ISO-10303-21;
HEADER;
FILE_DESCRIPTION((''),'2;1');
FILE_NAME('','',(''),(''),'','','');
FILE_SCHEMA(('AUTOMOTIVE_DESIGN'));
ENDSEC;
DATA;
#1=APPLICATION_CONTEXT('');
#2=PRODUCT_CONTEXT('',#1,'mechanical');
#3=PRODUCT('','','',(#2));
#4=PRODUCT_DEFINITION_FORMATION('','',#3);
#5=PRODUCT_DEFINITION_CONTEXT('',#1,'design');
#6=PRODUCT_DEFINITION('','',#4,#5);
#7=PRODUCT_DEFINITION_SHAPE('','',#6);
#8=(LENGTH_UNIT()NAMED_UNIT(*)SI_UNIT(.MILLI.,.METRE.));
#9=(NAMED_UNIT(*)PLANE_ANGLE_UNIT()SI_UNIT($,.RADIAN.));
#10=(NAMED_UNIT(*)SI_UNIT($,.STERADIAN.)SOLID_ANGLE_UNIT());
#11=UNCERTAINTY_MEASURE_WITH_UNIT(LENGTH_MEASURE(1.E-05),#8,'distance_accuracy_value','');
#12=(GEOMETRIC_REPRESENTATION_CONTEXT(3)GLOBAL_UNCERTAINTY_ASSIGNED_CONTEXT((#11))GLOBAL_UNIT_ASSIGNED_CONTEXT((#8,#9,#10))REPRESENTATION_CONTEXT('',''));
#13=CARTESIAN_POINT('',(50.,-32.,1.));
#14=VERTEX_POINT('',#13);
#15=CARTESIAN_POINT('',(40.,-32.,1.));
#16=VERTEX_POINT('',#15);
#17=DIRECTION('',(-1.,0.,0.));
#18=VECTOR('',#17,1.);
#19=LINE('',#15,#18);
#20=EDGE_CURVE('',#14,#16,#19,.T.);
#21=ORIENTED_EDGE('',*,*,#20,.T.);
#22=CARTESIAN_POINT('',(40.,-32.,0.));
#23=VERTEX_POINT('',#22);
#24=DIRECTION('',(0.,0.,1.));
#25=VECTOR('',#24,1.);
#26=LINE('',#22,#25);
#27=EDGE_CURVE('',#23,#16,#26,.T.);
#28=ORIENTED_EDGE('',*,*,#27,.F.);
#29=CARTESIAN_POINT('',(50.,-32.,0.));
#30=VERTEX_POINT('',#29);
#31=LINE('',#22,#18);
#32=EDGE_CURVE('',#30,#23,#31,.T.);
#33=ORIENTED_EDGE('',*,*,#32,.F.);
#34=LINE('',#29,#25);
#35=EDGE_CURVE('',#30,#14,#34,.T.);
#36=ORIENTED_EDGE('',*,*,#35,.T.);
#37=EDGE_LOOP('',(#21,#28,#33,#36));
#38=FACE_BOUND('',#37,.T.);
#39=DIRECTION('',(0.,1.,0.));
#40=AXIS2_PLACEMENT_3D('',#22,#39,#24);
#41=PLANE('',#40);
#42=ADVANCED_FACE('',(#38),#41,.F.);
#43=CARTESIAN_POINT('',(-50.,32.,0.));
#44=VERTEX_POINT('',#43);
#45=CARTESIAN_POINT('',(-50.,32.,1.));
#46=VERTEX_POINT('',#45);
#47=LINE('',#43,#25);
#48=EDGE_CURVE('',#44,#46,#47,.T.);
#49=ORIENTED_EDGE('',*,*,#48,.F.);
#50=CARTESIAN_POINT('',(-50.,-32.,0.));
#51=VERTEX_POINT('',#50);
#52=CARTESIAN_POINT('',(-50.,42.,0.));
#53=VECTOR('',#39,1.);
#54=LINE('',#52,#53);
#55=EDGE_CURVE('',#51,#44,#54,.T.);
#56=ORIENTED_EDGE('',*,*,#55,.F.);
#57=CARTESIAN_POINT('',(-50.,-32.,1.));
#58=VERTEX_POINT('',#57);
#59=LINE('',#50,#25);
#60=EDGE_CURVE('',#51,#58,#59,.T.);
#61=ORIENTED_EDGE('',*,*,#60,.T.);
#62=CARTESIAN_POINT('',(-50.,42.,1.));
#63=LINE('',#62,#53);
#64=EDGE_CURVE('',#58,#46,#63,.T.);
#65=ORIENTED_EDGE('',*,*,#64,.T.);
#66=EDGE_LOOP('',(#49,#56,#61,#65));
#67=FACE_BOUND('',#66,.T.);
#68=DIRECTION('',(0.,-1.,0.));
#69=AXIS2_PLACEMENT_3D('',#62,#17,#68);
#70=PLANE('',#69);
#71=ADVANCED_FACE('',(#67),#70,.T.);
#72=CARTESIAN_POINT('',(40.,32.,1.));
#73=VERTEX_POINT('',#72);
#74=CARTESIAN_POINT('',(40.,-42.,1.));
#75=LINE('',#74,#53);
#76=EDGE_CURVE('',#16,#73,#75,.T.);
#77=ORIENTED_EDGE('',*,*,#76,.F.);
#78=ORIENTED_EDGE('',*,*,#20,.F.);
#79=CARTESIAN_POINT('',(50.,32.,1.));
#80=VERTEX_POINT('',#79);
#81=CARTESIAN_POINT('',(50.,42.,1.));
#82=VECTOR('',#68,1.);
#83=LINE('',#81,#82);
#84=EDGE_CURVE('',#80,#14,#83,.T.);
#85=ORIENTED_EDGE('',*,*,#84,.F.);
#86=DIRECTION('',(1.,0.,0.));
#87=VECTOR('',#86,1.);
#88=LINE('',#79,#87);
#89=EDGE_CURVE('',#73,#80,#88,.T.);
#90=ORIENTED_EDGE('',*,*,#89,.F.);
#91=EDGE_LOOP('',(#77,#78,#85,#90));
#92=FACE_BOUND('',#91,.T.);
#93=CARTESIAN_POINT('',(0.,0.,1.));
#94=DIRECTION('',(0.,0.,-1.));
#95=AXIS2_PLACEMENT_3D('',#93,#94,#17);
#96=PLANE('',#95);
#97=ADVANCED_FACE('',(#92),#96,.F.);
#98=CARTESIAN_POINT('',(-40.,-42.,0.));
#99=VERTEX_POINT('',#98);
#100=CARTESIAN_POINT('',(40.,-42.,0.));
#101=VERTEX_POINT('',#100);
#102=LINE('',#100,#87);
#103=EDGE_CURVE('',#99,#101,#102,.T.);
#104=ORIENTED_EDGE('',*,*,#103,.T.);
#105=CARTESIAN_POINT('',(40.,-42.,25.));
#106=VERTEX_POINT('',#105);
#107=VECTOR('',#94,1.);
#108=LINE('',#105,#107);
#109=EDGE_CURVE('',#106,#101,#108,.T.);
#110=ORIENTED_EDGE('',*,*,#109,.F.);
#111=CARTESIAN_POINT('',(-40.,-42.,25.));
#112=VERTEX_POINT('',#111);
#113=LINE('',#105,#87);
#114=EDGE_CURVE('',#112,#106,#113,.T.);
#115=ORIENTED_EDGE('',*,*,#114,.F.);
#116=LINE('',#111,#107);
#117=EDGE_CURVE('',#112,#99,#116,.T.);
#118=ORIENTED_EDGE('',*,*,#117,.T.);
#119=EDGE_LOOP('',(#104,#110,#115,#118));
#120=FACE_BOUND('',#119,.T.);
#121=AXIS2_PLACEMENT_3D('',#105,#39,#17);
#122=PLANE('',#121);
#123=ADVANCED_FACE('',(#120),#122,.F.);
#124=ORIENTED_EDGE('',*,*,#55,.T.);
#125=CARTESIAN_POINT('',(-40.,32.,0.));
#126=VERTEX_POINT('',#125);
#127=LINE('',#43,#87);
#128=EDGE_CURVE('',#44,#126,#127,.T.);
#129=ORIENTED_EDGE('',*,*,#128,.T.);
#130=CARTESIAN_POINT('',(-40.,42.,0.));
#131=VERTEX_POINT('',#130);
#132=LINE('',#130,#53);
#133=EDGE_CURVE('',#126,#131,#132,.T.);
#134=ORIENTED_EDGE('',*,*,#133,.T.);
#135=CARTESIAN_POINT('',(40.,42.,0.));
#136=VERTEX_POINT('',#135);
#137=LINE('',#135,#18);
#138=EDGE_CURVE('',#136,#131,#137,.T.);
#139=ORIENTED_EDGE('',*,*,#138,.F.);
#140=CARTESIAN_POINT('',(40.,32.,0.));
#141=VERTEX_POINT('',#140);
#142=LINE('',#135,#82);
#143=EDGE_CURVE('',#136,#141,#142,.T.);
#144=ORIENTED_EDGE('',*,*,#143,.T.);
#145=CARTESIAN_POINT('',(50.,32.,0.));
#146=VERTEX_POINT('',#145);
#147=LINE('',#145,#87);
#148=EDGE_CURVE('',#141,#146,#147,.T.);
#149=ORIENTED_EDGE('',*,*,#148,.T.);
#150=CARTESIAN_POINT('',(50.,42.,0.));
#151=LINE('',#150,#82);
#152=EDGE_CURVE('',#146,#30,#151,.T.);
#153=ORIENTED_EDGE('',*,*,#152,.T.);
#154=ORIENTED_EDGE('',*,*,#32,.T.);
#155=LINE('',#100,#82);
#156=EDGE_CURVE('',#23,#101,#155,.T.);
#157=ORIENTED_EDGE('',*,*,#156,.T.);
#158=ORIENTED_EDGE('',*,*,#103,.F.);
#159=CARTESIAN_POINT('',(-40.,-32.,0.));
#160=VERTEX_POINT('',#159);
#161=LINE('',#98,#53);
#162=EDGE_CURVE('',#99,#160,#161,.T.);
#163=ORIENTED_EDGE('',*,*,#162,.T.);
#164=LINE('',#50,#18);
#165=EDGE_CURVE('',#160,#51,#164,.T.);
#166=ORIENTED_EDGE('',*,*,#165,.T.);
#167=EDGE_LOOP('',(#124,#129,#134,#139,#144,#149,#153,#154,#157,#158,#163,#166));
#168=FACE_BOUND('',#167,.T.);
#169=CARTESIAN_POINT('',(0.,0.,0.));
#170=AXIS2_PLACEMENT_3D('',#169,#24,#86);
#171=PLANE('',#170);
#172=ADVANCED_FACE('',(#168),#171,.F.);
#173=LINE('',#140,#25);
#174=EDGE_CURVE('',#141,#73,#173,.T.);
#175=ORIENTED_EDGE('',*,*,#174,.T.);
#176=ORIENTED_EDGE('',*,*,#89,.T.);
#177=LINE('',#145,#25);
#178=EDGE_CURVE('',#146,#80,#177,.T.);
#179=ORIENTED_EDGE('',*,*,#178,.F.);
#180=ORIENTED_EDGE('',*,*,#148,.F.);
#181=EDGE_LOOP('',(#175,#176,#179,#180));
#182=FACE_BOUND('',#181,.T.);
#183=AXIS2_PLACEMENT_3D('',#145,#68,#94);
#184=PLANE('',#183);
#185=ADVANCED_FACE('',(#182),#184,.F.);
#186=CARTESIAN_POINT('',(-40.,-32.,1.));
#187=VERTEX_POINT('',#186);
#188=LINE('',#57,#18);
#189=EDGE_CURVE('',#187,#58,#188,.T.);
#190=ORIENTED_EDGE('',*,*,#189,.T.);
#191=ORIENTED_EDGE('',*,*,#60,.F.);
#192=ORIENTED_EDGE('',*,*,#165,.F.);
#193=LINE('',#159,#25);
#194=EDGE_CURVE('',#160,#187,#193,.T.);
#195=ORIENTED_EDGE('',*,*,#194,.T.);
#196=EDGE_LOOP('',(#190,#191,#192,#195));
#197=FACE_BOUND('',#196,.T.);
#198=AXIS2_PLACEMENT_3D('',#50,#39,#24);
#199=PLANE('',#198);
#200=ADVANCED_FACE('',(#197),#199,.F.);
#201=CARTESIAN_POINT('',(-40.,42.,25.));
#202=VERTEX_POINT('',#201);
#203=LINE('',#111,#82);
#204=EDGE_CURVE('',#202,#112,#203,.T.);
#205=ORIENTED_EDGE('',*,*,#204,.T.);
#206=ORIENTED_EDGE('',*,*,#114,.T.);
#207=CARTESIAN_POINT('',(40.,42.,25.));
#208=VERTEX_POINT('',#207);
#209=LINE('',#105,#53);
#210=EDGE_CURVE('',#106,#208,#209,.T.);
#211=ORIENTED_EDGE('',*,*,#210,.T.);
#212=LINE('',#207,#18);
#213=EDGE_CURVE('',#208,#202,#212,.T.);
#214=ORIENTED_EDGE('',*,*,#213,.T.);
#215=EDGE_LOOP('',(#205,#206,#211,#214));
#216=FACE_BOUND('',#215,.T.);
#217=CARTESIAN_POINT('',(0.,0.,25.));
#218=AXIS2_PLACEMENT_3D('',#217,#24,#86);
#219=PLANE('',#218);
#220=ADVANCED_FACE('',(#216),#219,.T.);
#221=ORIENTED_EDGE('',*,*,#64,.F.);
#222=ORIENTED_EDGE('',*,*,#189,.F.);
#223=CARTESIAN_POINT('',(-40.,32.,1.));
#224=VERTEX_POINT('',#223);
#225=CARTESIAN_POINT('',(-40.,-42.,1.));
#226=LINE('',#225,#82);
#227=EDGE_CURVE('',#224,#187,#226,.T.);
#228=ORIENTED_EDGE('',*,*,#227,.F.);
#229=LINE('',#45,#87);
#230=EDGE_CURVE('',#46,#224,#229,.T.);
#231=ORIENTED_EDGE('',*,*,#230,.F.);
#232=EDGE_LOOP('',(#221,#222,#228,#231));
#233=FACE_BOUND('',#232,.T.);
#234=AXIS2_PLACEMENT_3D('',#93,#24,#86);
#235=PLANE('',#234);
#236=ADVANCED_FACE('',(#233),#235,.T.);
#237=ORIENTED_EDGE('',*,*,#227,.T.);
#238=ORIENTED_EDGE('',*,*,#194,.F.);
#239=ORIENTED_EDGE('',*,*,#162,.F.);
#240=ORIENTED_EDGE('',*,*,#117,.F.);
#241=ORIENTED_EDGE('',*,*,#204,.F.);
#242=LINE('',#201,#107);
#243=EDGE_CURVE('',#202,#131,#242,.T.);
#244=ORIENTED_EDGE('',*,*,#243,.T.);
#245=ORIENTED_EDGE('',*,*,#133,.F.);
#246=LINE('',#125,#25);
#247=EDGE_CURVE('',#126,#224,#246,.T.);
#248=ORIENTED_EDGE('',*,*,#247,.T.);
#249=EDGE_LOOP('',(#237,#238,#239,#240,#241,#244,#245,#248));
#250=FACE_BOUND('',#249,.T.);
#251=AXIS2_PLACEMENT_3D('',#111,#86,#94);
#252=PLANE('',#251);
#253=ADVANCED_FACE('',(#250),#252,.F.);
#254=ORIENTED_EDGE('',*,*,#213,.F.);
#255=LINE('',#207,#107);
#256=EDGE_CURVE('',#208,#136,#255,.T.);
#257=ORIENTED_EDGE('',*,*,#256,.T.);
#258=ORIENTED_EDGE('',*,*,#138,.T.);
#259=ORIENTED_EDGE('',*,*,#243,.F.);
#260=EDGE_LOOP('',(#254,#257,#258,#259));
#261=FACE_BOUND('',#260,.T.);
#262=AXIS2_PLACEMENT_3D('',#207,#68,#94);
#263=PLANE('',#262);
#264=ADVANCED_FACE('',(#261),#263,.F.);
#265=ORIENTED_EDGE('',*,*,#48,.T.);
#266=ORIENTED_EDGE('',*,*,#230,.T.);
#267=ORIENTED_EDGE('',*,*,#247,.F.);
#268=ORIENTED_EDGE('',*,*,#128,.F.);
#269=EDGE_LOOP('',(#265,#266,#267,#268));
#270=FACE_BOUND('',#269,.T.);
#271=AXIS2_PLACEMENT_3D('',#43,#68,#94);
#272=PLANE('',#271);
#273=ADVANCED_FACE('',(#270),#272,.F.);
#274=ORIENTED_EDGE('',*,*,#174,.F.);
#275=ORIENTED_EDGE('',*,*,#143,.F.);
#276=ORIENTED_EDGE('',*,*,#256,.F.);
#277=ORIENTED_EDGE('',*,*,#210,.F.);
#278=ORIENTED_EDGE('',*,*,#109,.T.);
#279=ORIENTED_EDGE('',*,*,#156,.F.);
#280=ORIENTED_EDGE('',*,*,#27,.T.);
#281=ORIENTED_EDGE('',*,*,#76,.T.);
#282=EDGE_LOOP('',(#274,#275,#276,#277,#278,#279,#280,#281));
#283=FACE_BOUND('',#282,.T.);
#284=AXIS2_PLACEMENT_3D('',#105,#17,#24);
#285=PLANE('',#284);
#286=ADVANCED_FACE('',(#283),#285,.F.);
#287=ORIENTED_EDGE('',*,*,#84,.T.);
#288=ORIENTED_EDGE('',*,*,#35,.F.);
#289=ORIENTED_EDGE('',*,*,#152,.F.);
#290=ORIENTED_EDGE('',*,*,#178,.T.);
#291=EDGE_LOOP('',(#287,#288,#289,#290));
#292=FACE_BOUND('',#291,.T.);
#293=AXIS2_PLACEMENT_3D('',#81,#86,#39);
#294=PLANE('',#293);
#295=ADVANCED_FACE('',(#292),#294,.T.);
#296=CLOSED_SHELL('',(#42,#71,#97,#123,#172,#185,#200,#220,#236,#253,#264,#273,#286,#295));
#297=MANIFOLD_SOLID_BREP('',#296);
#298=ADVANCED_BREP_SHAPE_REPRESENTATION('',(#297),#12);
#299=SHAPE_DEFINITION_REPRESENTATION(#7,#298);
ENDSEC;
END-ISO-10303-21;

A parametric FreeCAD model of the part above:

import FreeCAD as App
import Part
import Sketcher
from FreeCAD import Vector


def add_polygon(sketch, points):
    """Adds a closed chain of lines whose ends are joined by coincident constraints."""
    first, n = sketch.GeometryCount, len(points)
    for a, b in zip(points, points[1:] + points[:1]):
        sketch.addGeometry(Part.LineSegment(App.Vector(*a, 0), App.Vector(*b, 0)), False)
    for i in range(n):
        sketch.addConstraint(Sketcher.Constraint("Coincident", first + i, 2, first + (i + 1) % n, 1))

doc = App.newDocument("Part")
body = doc.addObject("PartDesign::Body", "Body")

sketch1 = doc.addObject("Sketcher::SketchObject", "Sketch")
body.addObject(sketch1)
sketch1.AttachmentSupport = (doc.XY_Plane, [""])
sketch1.MapMode = "FlatFace"
add_polygon(sketch1, [(-40, 42), (-40, -42), (40, -42), (40, 42)])
sketch1.addConstraint(Sketcher.Constraint("Vertical", 0))
sketch1.addConstraint(Sketcher.Constraint("Horizontal", 1))
sketch1.addConstraint(Sketcher.Constraint("Vertical", 2))
sketch1.addConstraint(Sketcher.Constraint("Horizontal", 3))
sketch1.addConstraint(Sketcher.Constraint("Symmetric", 0, 2, 2, 2, -1, 1))
sketch1.addConstraint(Sketcher.Constraint("DistanceX", 1, 1, 1, 2, 80.0))
sketch1.addConstraint(Sketcher.Constraint("DistanceY", 0, 2, 0, 1, 84.0))
pad1 = doc.addObject("PartDesign::Pad", "Pad")
body.addObject(pad1)
pad1.Profile = sketch1
pad1.Length = 25

sketch2 = doc.addObject("Sketcher::SketchObject", "Sketch001")
body.addObject(sketch2)
sketch2.AttachmentSupport = (doc.XY_Plane, [""])
sketch2.MapMode = "FlatFace"
add_polygon(sketch2, [(50, 42), (50, -42), (40, -42), (40, 42)])
add_polygon(sketch2, [(-40, 42), (-40, -42), (-50, -42), (-50, 42)])
sketch2.addConstraint(Sketcher.Constraint("Vertical", 0))
sketch2.addConstraint(Sketcher.Constraint("Horizontal", 1))
sketch2.addConstraint(Sketcher.Constraint("Vertical", 2))
sketch2.addConstraint(Sketcher.Constraint("Horizontal", 3))
sketch2.addConstraint(Sketcher.Constraint("Vertical", 4))
sketch2.addConstraint(Sketcher.Constraint("Horizontal", 5))
sketch2.addConstraint(Sketcher.Constraint("Vertical", 6))
sketch2.addConstraint(Sketcher.Constraint("Horizontal", 7))
sketch2.addConstraint(Sketcher.Constraint("Symmetric", 2, 2, 4, 2, -1, 1))
sketch2.addConstraint(Sketcher.Constraint("Symmetric", 0, 2, 6, 2, -1, 1))
sketch2.addConstraint(Sketcher.Constraint("Horizontal", 1, 2, 4, 2))
sketch2.addConstraint(Sketcher.Constraint("DistanceX", 1, 2, 1, 1, 10.0))
sketch2.addConstraint(Sketcher.Constraint("DistanceY", 0, 2, 0, 1, 84.0))
sketch2.addConstraint(Sketcher.Constraint("DistanceX", -1, 1, 0, 2, 50.0))
pad2 = doc.addObject("PartDesign::Pad", "Pad001")
body.addObject(pad2)
pad2.Profile = sketch2
pad2.Length = 1

sketch3 = doc.addObject("Sketcher::SketchObject", "Sketch002")
body.addObject(sketch3)
sketch3.AttachmentSupport = (doc.XY_Plane, [""])
sketch3.MapMode = "FlatFace"
sketch3.AttachmentOffset = App.Placement(Vector(0, 0, 1), App.Rotation())
add_polygon(sketch3, [(-50, 42), (-50, 32), (-40, 32), (-40, 42)])
add_polygon(sketch3, [(-50, -32), (-50, -42), (-40, -42), (-40, -32)])
sketch3.addConstraint(Sketcher.Constraint("Vertical", 0))
sketch3.addConstraint(Sketcher.Constraint("Horizontal", 1))
sketch3.addConstraint(Sketcher.Constraint("Vertical", 2))
sketch3.addConstraint(Sketcher.Constraint("Horizontal", 3))
sketch3.addConstraint(Sketcher.Constraint("Vertical", 4))
sketch3.addConstraint(Sketcher.Constraint("Horizontal", 5))
sketch3.addConstraint(Sketcher.Constraint("Vertical", 6))
sketch3.addConstraint(Sketcher.Constraint("Horizontal", 7))
sketch3.addConstraint(Sketcher.Constraint("Symmetric", 3, 2, 4, 2, -1))
sketch3.addConstraint(Sketcher.Constraint("Symmetric", 1, 2, 6, 2, -1))
sketch3.addConstraint(Sketcher.Constraint("Equal", 7, 0))
sketch3.addConstraint(Sketcher.Constraint("DistanceX", 1, 1, 1, 2, 10.0))
sketch3.addConstraint(Sketcher.Constraint("DistanceX", 0, 2, -1, 1, 50.0))
sketch3.addConstraint(Sketcher.Constraint("DistanceY", -1, 1, 0, 2, 32.0))
pocket1 = doc.addObject("PartDesign::Pocket", "Pocket")
body.addObject(pocket1)
pocket1.Profile = sketch3
pocket1.Length = 1

sketch4 = doc.addObject("Sketcher::SketchObject", "Sketch003")
body.addObject(sketch4)
sketch4.AttachmentSupport = (doc.XY_Plane, [""])
sketch4.MapMode = "FlatFace"
sketch4.AttachmentOffset = App.Placement(Vector(0, 0, 1), App.Rotation())
add_polygon(sketch4, [(40, 42), (40, 32), (50, 32), (50, 42)])
add_polygon(sketch4, [(40, -32), (40, -42), (50, -42), (50, -32)])
sketch4.addConstraint(Sketcher.Constraint("Vertical", 0))
sketch4.addConstraint(Sketcher.Constraint("Horizontal", 1))
sketch4.addConstraint(Sketcher.Constraint("Vertical", 2))
sketch4.addConstraint(Sketcher.Constraint("Horizontal", 3))
sketch4.addConstraint(Sketcher.Constraint("Vertical", 4))
sketch4.addConstraint(Sketcher.Constraint("Horizontal", 5))
sketch4.addConstraint(Sketcher.Constraint("Vertical", 6))
sketch4.addConstraint(Sketcher.Constraint("Horizontal", 7))
sketch4.addConstraint(Sketcher.Constraint("Symmetric", 3, 2, 4, 2, -1))
sketch4.addConstraint(Sketcher.Constraint("Symmetric", 1, 2, 6, 2, -1))
sketch4.addConstraint(Sketcher.Constraint("Equal", 7, 0))
sketch4.addConstraint(Sketcher.Constraint("DistanceX", 1, 1, 1, 2, 10.0))
sketch4.addConstraint(Sketcher.Constraint("DistanceX", -1, 1, 0, 2, 40.0))
sketch4.addConstraint(Sketcher.Constraint("DistanceY", -1, 1, 0, 2, 32.0))
pocket2 = doc.addObject("PartDesign::Pocket", "Pocket001")
body.addObject(pocket2)
pocket2.Profile = sketch4
pocket2.Length = 1

doc.recompute()
